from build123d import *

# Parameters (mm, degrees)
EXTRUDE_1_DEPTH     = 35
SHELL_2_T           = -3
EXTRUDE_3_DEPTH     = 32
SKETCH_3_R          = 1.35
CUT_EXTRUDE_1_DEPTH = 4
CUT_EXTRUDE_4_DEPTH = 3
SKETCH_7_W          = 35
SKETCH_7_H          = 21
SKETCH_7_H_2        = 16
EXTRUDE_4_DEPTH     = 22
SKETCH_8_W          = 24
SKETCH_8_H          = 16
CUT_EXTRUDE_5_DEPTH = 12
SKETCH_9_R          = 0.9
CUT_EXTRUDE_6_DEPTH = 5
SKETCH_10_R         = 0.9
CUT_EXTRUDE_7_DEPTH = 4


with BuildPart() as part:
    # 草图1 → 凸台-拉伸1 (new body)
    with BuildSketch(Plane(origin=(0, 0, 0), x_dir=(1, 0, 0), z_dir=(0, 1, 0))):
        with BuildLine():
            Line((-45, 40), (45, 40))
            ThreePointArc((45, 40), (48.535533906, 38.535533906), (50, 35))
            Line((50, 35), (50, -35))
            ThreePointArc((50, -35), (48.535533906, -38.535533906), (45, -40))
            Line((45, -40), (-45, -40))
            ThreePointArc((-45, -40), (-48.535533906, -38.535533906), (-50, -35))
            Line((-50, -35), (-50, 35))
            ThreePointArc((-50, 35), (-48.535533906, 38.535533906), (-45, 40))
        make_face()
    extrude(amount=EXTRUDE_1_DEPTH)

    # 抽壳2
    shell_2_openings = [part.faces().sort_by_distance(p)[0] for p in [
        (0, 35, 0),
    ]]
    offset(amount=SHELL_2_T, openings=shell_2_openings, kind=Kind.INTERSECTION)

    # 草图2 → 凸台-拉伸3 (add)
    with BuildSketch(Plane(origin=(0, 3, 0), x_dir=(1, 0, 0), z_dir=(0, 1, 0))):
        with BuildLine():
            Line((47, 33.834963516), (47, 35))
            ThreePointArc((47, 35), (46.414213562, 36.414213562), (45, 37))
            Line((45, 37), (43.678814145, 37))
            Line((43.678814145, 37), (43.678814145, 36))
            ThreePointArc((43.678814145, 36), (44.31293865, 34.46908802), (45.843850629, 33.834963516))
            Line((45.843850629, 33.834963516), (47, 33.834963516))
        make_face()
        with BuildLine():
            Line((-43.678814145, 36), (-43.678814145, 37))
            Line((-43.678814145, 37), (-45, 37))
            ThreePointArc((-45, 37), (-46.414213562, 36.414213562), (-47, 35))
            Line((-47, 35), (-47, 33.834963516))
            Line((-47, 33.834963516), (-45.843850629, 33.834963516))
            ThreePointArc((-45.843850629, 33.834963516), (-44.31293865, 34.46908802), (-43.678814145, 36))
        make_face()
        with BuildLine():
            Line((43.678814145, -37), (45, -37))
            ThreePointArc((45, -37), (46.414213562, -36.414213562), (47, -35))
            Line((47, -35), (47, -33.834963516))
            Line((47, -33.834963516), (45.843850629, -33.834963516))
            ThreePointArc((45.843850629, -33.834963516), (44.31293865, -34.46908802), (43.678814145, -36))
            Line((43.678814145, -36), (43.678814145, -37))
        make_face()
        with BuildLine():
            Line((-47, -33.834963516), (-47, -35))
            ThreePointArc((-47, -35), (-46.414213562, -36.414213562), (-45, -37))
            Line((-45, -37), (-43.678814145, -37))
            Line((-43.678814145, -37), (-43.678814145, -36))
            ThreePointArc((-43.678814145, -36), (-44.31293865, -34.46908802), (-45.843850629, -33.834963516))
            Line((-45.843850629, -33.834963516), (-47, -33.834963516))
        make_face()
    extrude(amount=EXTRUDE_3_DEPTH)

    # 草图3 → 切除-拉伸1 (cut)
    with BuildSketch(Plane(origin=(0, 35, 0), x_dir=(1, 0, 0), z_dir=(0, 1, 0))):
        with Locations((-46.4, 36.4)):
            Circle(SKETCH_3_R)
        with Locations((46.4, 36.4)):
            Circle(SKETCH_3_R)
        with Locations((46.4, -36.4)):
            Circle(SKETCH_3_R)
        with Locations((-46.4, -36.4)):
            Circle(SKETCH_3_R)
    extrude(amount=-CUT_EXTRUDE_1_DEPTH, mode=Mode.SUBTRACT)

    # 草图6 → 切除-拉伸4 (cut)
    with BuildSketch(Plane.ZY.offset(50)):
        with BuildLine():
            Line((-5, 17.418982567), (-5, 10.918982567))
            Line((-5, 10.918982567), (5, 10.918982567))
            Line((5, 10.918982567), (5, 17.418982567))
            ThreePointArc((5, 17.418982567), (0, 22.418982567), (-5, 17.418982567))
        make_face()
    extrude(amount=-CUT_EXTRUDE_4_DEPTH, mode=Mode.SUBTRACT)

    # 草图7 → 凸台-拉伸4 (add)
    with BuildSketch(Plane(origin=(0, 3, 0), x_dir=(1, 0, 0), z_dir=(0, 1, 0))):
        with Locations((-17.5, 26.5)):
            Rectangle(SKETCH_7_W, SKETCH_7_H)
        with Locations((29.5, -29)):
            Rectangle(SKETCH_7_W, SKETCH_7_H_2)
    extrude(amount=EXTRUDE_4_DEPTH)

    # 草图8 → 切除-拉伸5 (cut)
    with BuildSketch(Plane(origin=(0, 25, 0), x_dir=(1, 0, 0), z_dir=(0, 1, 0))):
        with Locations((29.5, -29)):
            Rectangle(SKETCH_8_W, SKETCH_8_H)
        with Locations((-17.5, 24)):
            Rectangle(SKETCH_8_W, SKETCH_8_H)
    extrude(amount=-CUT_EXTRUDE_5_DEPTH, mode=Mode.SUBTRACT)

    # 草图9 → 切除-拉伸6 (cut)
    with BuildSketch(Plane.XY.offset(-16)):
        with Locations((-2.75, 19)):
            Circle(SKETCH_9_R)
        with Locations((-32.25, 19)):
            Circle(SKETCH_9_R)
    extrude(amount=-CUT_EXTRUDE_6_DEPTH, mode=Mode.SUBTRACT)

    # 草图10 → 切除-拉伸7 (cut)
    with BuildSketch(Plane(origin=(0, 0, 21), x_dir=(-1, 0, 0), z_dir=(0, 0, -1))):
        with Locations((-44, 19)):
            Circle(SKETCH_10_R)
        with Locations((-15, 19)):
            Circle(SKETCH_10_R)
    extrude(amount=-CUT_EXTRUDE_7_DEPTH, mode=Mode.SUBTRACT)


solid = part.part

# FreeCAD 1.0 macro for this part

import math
import FreeCAD as App
import Part
import Sketcher

V = App.Vector
Q = App.Units.Quantity


def faces_at(feature, points):
    """Names of the faces that lie closest to the given points."""
    faces = feature.Shape.Faces
    near = lambda p: min(range(len(faces)), key=lambda i: faces[i].distToShape(Part.Vertex(*p))[0])
    return sorted({f"Face{near(p) + 1}" for p in points})

doc = App.newDocument("Part")
body = doc.addObject("PartDesign::Body", "Body")

# Sketch on XZ plane
sketch1 = doc.addObject("Sketcher::SketchObject", "Sketch")
body.addObject(sketch1)
sketch1.AttachmentSupport = (doc.XZ_Plane, [""])
sketch1.MapMode = "FlatFace"
sketch1.addGeometry([
    Part.LineSegment(V(45, -40, 0), V(-45, -40, 0)),  # 0
    Part.ArcOfCircle(Part.Circle(V(-45, -35, 0), V(0, 0, 1), 5), math.radians(180), math.radians(270)),  # 1
    Part.LineSegment(V(-50, -35, 0), V(-50, 35, 0)),  # 2
    Part.ArcOfCircle(Part.Circle(V(-45, 35, 0), V(0, 0, 1), 5), math.radians(90), math.radians(180)),  # 3
    Part.LineSegment(V(-45, 40, 0), V(45, 40, 0)),  # 4
    Part.ArcOfCircle(Part.Circle(V(45, 35, 0), V(0, 0, 1), 5), math.radians(0), math.radians(90)),  # 5
    Part.LineSegment(V(50, 35, 0), V(50, -35, 0)),  # 6
    Part.ArcOfCircle(Part.Circle(V(45, -35, 0), V(0, 0, 1), 5), math.radians(-90), math.radians(0)),  # 7
], False)
sketch1.addConstraint([
    Sketcher.Constraint("Tangent", 0, 2, 1, 2),
    Sketcher.Constraint("Tangent", 1, 1, 2, 1),
    Sketcher.Constraint("Tangent", 2, 2, 3, 2),
    Sketcher.Constraint("Tangent", 3, 1, 4, 1),
    Sketcher.Constraint("Tangent", 4, 2, 5, 2),
    Sketcher.Constraint("Tangent", 5, 1, 6, 1),
    Sketcher.Constraint("Tangent", 6, 2, 7, 2),
    Sketcher.Constraint("Tangent", 7, 1, 0, 1),
    Sketcher.Constraint("Horizontal", 0),
    Sketcher.Constraint("Vertical", 2),
    Sketcher.Constraint("Horizontal", 4),
    Sketcher.Constraint("Vertical", 6),
    Sketcher.Constraint("Equal", 1, 3),
    Sketcher.Constraint("Equal", 3, 5),
    Sketcher.Constraint("Equal", 5, 7),
    Sketcher.Constraint("Symmetric", 1, 3, 5, 3, -1, 1),
    Sketcher.Constraint("Radius", 1, Q("5 mm")),
    Sketcher.Constraint("DistanceX", 0, 2, 0, 1, Q("90 mm")),
    Sketcher.Constraint("DistanceY", 2, 1, 2, 2, Q("70 mm")),
])
pad1 = doc.addObject("PartDesign::Pad", "Pad")
body.addObject(pad1)
pad1.Profile = sketch1
pad1.Length = 35
pad1.Reversed = True
doc.recompute()

thickness = doc.addObject("PartDesign::Thickness", "Thickness")
body.addObject(thickness)
thickness.Base = (pad1, faces_at(pad1, [(0, 35, 0)]))
thickness.Value = 3
thickness.Reversed = True
thickness.Join = "Intersection"

# Sketch on XZ plane
sketch2 = doc.addObject("Sketcher::SketchObject", "Sketch001")
body.addObject(sketch2)
sketch2.AttachmentSupport = (doc.XZ_Plane, [""])
sketch2.MapMode = "FlatFace"
sketch2.AttachmentOffset = App.Placement(V(0, 0, -3), App.Rotation())
sketch2.addGeometry([
    Part.LineSegment(V(47, -33.8, 0), V(47, -35, 0)),  # 0
    Part.ArcOfCircle(Part.Circle(V(45, -35, 0), V(0, 0, 1), 2), math.radians(-90), math.radians(0)),  # 1
    Part.LineSegment(V(45, -37, 0), V(43.7, -37, 0)),  # 2
    Part.LineSegment(V(43.7, -37, 0), V(43.7, -36, 0)),  # 3
    Part.ArcOfCircle(Part.Circle(V(45.8, -36, 0), V(0, 0, 1), 2.2), math.radians(90), math.radians(180)),  # 4
    Part.LineSegment(V(45.8, -33.8, 0), V(47, -33.8, 0)),  # 5
    Part.LineSegment(V(-43.7, -36, 0), V(-43.7, -37, 0)),  # 6
    Part.LineSegment(V(-43.7, -37, 0), V(-45, -37, 0)),  # 7
    Part.ArcOfCircle(Part.Circle(V(-45, -35, 0), V(0, 0, 1), 2), math.radians(-180), math.radians(-90)),  # 8
    Part.LineSegment(V(-47, -35, 0), V(-47, -33.8, 0)),  # 9
    Part.LineSegment(V(-47, -33.8, 0), V(-45.8, -33.8, 0)),  # 10
    Part.ArcOfCircle(Part.Circle(V(-45.8, -36, 0), V(0, 0, 1), 2.2), math.radians(0), math.radians(90)),  # 11
    Part.LineSegment(V(43.7, 37, 0), V(45, 37, 0)),  # 12
    Part.ArcOfCircle(Part.Circle(V(45, 35, 0), V(0, 0, 1), 2), math.radians(0), math.radians(90)),  # 13
    Part.LineSegment(V(47, 35, 0), V(47, 33.8, 0)),  # 14
    Part.LineSegment(V(47, 33.8, 0), V(45.8, 33.8, 0)),  # 15
    Part.ArcOfCircle(Part.Circle(V(45.8, 36, 0), V(0, 0, 1), 2.2), math.radians(180), math.radians(270)),  # 16
    Part.LineSegment(V(43.7, 36, 0), V(43.7, 37, 0)),  # 17
    Part.LineSegment(V(-47, 33.8, 0), V(-47, 35, 0)),  # 18
    Part.ArcOfCircle(Part.Circle(V(-45, 35, 0), V(0, 0, 1), 2), math.radians(90), math.radians(180)),  # 19
    Part.LineSegment(V(-45, 37, 0), V(-43.7, 37, 0)),  # 20
    Part.LineSegment(V(-43.7, 37, 0), V(-43.7, 36, 0)),  # 21
    Part.ArcOfCircle(Part.Circle(V(-45.8, 36, 0), V(0, 0, 1), 2.2), math.radians(-90), math.radians(0)),  # 22
    Part.LineSegment(V(-45.8, 33.8, 0), V(-47, 33.8, 0)),  # 23
], False)
sketch2.addConstraint([
    Sketcher.Constraint("Tangent", 0, 2, 1, 2),
    Sketcher.Constraint("Tangent", 1, 1, 2, 1),
    Sketcher.Constraint("Coincident", 2, 2, 3, 1),
    Sketcher.Constraint("Tangent", 3, 2, 4, 2),
    Sketcher.Constraint("Tangent", 4, 1, 5, 1),
    Sketcher.Constraint("Coincident", 5, 2, 0, 1),
    Sketcher.Constraint("Coincident", 6, 2, 7, 1),
    Sketcher.Constraint("Tangent", 7, 2, 8, 2),
    Sketcher.Constraint("Tangent", 8, 1, 9, 1),
    Sketcher.Constraint("Coincident", 9, 2, 10, 1),
    Sketcher.Constraint("Tangent", 10, 2, 11, 2),
    Sketcher.Constraint("Tangent", 11, 1, 6, 1),
    Sketcher.Constraint("Tangent", 12, 2, 13, 2),
    Sketcher.Constraint("Tangent", 13, 1, 14, 1),
    Sketcher.Constraint("Coincident", 14, 2, 15, 1),
    Sketcher.Constraint("Tangent", 15, 2, 16, 2),
    Sketcher.Constraint("Tangent", 16, 1, 17, 1),
    Sketcher.Constraint("Coincident", 17, 2, 12, 1),
    Sketcher.Constraint("Tangent", 18, 2, 19, 2),
    Sketcher.Constraint("Tangent", 19, 1, 20, 1),
    Sketcher.Constraint("Coincident", 20, 2, 21, 1),
    Sketcher.Constraint("Tangent", 21, 2, 22, 2),
    Sketcher.Constraint("Tangent", 22, 1, 23, 1),
    Sketcher.Constraint("Coincident", 23, 2, 18, 1),
    Sketcher.Constraint("Vertical", 0),
    Sketcher.Constraint("Horizontal", 2),
    Sketcher.Constraint("Vertical", 3),
    Sketcher.Constraint("Horizontal", 5),
    Sketcher.Constraint("Vertical", 6),
    Sketcher.Constraint("Horizontal", 7),
    Sketcher.Constraint("Vertical", 9),
    Sketcher.Constraint("Horizontal", 10),
    Sketcher.Constraint("Horizontal", 12),
    Sketcher.Constraint("Vertical", 14),
    Sketcher.Constraint("Horizontal", 15),
    Sketcher.Constraint("Vertical", 17),
    Sketcher.Constraint("Vertical", 18),
    Sketcher.Constraint("Horizontal", 20),
    Sketcher.Constraint("Vertical", 21),
    Sketcher.Constraint("Horizontal", 23),
    Sketcher.Constraint("Equal", 1, 8),
    Sketcher.Constraint("Equal", 4, 11),
    Sketcher.Constraint("Equal", 8, 13),
    Sketcher.Constraint("Equal", 11, 16),
    Sketcher.Constraint("Equal", 13, 19),
    Sketcher.Constraint("Equal", 16, 22),
    Sketcher.Constraint("Symmetric", 8, 3, 13, 3, -1, 1),
    Sketcher.Constraint("Symmetric", 11, 3, 16, 3, -1, 1),
    Sketcher.Constraint("Symmetric", 1, 3, 19, 3, -1, 1),
    Sketcher.Constraint("Symmetric", 4, 3, 22, 3, -1, 1),
    Sketcher.Constraint("Symmetric", 1, 3, 8, 3, -2),
    Sketcher.Constraint("Symmetric", 4, 3, 11, 3, -2),
    Sketcher.Constraint("Radius", 1, Q("2 mm")),
    Sketcher.Constraint("DistanceY", 3, 1, 3, 2, Q("1 mm")),
    Sketcher.Constraint("DistanceX", -1, 1, 1, 3, Q("45 mm")),
    Sketcher.Constraint("DistanceY", 1, 3, -1, 1, Q("35 mm")),
    Sketcher.Constraint("Radius", 4, Q("2.165036 mm")),
    Sketcher.Constraint("DistanceX", 5, 1, 5, 2, Q("1.156149 mm")),
])
pad2 = doc.addObject("PartDesign::Pad", "Pad001")
body.addObject(pad2)
pad2.Profile = sketch2
pad2.Length = 32
pad2.Reversed = True

# Sketch on XZ plane
sketch3 = doc.addObject("Sketcher::SketchObject", "Sketch002")
body.addObject(sketch3)
sketch3.AttachmentSupport = (doc.XZ_Plane, [""])
sketch3.MapMode = "FlatFace"
sketch3.AttachmentOffset = App.Placement(V(0, 0, -35), App.Rotation())
sketch3.addGeometry([
    Part.Circle(V(-46.4, -36.4, 0), V(0, 0, 1), 1.4),
    Part.Circle(V(46.4, -36.4, 0), V(0, 0, 1), 1.4),
    Part.Circle(V(46.4, 36.4, 0), V(0, 0, 1), 1.4),
    Part.Circle(V(-46.4, 36.4, 0), V(0, 0, 1), 1.4),
], False)
sketch3.addConstraint([
    Sketcher.Constraint("Equal", 0, 1),
    Sketcher.Constraint("Equal", 1, 2),
    Sketcher.Constraint("Equal", 2, 3),
    Sketcher.Constraint("Symmetric", 0, 3, 2, 3, -1, 1),
    Sketcher.Constraint("Symmetric", 1, 3, 3, 3, -1, 1),
    Sketcher.Constraint("Symmetric", 0, 3, 1, 3, -2),
    Sketcher.Constraint("Diameter", 0, Q("2.7 mm")),
    Sketcher.Constraint("DistanceX", 0, 3, -1, 1, Q("46.4 mm")),
    Sketcher.Constraint("DistanceY", 0, 3, -1, 1, Q("36.4 mm")),
])
pocket1 = doc.addObject("PartDesign::Pocket", "Pocket")
body.addObject(pocket1)
pocket1.Profile = sketch3
pocket1.Length = 4
pocket1.Reversed = True

# Sketch on YZ plane
sketch4 = doc.addObject("Sketcher::SketchObject", "Sketch003")
body.addObject(sketch4)
sketch4.AttachmentSupport = (doc.YZ_Plane, [""])
sketch4.MapMode = "FlatFace"
sketch4.AttachmentOffset = App.Placement(V(0, 0, -50), App.Rotation())
sketch4.addGeometry([
    Part.LineSegment(V(17, -5, 0), V(11, -5, 0)),
    Part.LineSegment(V(11, -5, 0), V(11, 5, 0)),
    Part.LineSegment(V(11, 5, 0), V(17, 5, 0)),
    Part.ArcOfCircle(Part.Circle(V(17, 0, 0), V(0, 0, 1), 5), math.radians(-90), math.radians(90)),
], False)
sketch4.addConstraint([
    Sketcher.Constraint("Coincident", 0, 2, 1, 1),
    Sketcher.Constraint("Coincident", 1, 2, 2, 1),
    Sketcher.Constraint("Tangent", 2, 2, 3, 2),
    Sketcher.Constraint("Tangent", 3, 1, 0, 1),
    Sketcher.Constraint("Horizontal", 0),
    Sketcher.Constraint("Vertical", 1),
    Sketcher.Constraint("Horizontal", 2),
    Sketcher.Constraint("PointOnObject", 3, 3, -1),
    Sketcher.Constraint("Radius", 3, Q("5 mm")),
    Sketcher.Constraint("DistanceX", 0, 2, 0, 1, Q("6.5 mm")),
    Sketcher.Constraint("DistanceX", -1, 1, 3, 3, Q("17.418983 mm")),
])
pocket2 = doc.addObject("PartDesign::Pocket", "Pocket001")
body.addObject(pocket2)
pocket2.Profile = sketch4
pocket2.Length = 3
pocket2.Reversed = True

# Sketch on XZ plane
sketch5 = doc.addObject("Sketcher::SketchObject", "Sketch004")
body.addObject(sketch5)
sketch5.AttachmentSupport = (doc.XZ_Plane, [""])
sketch5.MapMode = "FlatFace"
sketch5.AttachmentOffset = App.Placement(V(0, 0, -3), App.Rotation())
sketch5.addGeometry([
    Part.LineSegment(V(-35, -37, 0), V(-35, -16, 0)),  # 0
    Part.LineSegment(V(-35, -16, 0), V(0, -16, 0)),  # 1
    Part.LineSegment(V(0, -16, 0), V(0, -37, 0)),  # 2
    Part.LineSegment(V(0, -37, 0), V(-35, -37, 0)),  # 3
    Part.LineSegment(V(12, 21, 0), V(12, 37, 0)),  # 4
    Part.LineSegment(V(12, 37, 0), V(47, 37, 0)),  # 5
    Part.LineSegment(V(47, 37, 0), V(47, 21, 0)),  # 6
    Part.LineSegment(V(47, 21, 0), V(12, 21, 0)),  # 7
], False)
sketch5.addConstraint([
    Sketcher.Constraint("Coincident", 0, 2, 1, 1),
    Sketcher.Constraint("Coincident", 1, 2, 2, 1),
    Sketcher.Constraint("Coincident", 2, 2, 3, 1),
    Sketcher.Constraint("Coincident", 3, 2, 0, 1),
    Sketcher.Constraint("Coincident", 4, 2, 5, 1),
    Sketcher.Constraint("Coincident", 5, 2, 6, 1),
    Sketcher.Constraint("Coincident", 6, 2, 7, 1),
    Sketcher.Constraint("Coincident", 7, 2, 4, 1),
    Sketcher.Constraint("Vertical", 0),
    Sketcher.Constraint("Horizontal", 1),
    Sketcher.Constraint("Vertical", 2),
    Sketcher.Constraint("Horizontal", 3),
    Sketcher.Constraint("Vertical", 4),
    Sketcher.Constraint("Horizontal", 5),
    Sketcher.Constraint("Vertical", 6),
    Sketcher.Constraint("Horizontal", 7),
    Sketcher.Constraint("PointOnObject", 1, 2, -2),
    Sketcher.Constraint("Equal", 3, 5),
    Sketcher.Constraint("DistanceX", 1, 1, 1, 2, Q("35 mm")),
    Sketcher.Constraint("DistanceY", 0, 1, 0, 2, Q("21 mm")),
    Sketcher.Constraint("DistanceY", 4, 1, 4, 2, Q("16 mm")),
    Sketcher.Constraint("DistanceY", 0, 2, -1, 1, Q("16 mm")),
    Sketcher.Constraint("DistanceX", -1, 1, 4, 2, Q("12 mm")),
    Sketcher.Constraint("DistanceY", -1, 1, 4, 2, Q("37 mm")),
])
pad3 = doc.addObject("PartDesign::Pad", "Pad002")
body.addObject(pad3)
pad3.Profile = sketch5
pad3.Length = 22
pad3.Reversed = True

# Sketch on XZ plane
sketch6 = doc.addObject("Sketcher::SketchObject", "Sketch005")
body.addObject(sketch6)
sketch6.AttachmentSupport = (doc.XZ_Plane, [""])
sketch6.MapMode = "FlatFace"
sketch6.AttachmentOffset = App.Placement(V(0, 0, -25), App.Rotation())
sketch6.addGeometry([
    Part.LineSegment(V(18, 21, 0), V(18, 37, 0)),  # 0
    Part.LineSegment(V(18, 37, 0), V(42, 37, 0)),  # 1
    Part.LineSegment(V(42, 37, 0), V(42, 21, 0)),  # 2
    Part.LineSegment(V(42, 21, 0), V(18, 21, 0)),  # 3
    Part.LineSegment(V(-30, -32, 0), V(-30, -16, 0)),  # 4
    Part.LineSegment(V(-30, -16, 0), V(-6, -16, 0)),  # 5
    Part.LineSegment(V(-6, -16, 0), V(-6, -32, 0)),  # 6
    Part.LineSegment(V(-6, -32, 0), V(-30, -32, 0)),  # 7
], False)
sketch6.addConstraint([
    Sketcher.Constraint("Coincident", 0, 2, 1, 1),
    Sketcher.Constraint("Coincident", 1, 2, 2, 1),
    Sketcher.Constraint("Coincident", 2, 2, 3, 1),
    Sketcher.Constraint("Coincident", 3, 2, 0, 1),
    Sketcher.Constraint("Coincident", 4, 2, 5, 1),
    Sketcher.Constraint("Coincident", 5, 2, 6, 1),
    Sketcher.Constraint("Coincident", 6, 2, 7, 1),
    Sketcher.Constraint("Coincident", 7, 2, 4, 1),
    Sketcher.Constraint("Vertical", 0),
    Sketcher.Constraint("Horizontal", 1),
    Sketcher.Constraint("Vertical", 2),
    Sketcher.Constraint("Horizontal", 3),
    Sketcher.Constraint("Vertical", 4),
    Sketcher.Constraint("Horizontal", 5),
    Sketcher.Constraint("Vertical", 6),
    Sketcher.Constraint("Horizontal", 7),
    Sketcher.Constraint("Equal", 3, 5),
    Sketcher.Constraint("Equal", 2, 4),
    Sketcher.Constraint("DistanceX", 1, 1, 1, 2, Q("24 mm")),
    Sketcher.Constraint("DistanceY", 0, 1, 0, 2, Q("16 mm")),
    Sketcher.Constraint("DistanceY", -1, 1, 0, 2, Q("37 mm")),
    Sketcher.Constraint("DistanceY", 4, 2, -1, 1, Q("16 mm")),
    Sketcher.Constraint("DistanceX", 4, 2, 3, 2, Q("47 mm")),
    Sketcher.Constraint("DistanceX", -1, 1, 0, 2, Q("17.5 mm")),
])
pocket3 = doc.addObject("PartDesign::Pocket", "Pocket002")
body.addObject(pocket3)
pocket3.Profile = sketch6
pocket3.Length = 12
pocket3.Reversed = True

# Sketch on XY plane
sketch7 = doc.addObject("Sketcher::SketchObject", "Sketch006")
body.addObject(sketch7)
sketch7.AttachmentSupport = (doc.XY_Plane, [""])
sketch7.MapMode = "FlatFace"
sketch7.AttachmentOffset = App.Placement(V(0, 0, -16), App.Rotation())
sketch7.addGeometry([
    Part.Circle(V(-2.8, 19, 0), V(0, 0, 1), 0.9),
    Part.Circle(V(-32.2, 19, 0), V(0, 0, 1), 0.9),
], False)
sketch7.addConstraint([
    Sketcher.Constraint("Equal", 0, 1),
    Sketcher.Constraint("Horizontal", 0, 3, 1, 3),
    Sketcher.Constraint("Diameter", 0, Q("1.8 mm")),
    Sketcher.Constraint("DistanceY", -1, 1, 0, 3, Q("19 mm")),
    Sketcher.Constraint("DistanceX", 1, 3, 0, 3, Q("29.5 mm")),
    Sketcher.Constraint("DistanceX", 0, 3, -1, 1, Q("2.75 mm")),
])
pocket4 = doc.addObject("PartDesign::Pocket", "Pocket003")
body.addObject(pocket4)
pocket4.Profile = sketch7
pocket4.Length = 5

# Sketch on XY plane
sketch8 = doc.addObject("Sketcher::SketchObject", "Sketch007")
body.addObject(sketch8)
sketch8.AttachmentSupport = (doc.XY_Plane, [""])
sketch8.MapMode = "FlatFace"
sketch8.AttachmentOffset = App.Placement(V(0, 0, 21), App.Rotation())
sketch8.addGeometry([
    Part.Circle(V(44, 19, 0), V(0, 0, 1), 0.9),
    Part.Circle(V(15, 19, 0), V(0, 0, 1), 0.9),
], False)
sketch8.addConstraint([
    Sketcher.Constraint("Equal", 0, 1),
    Sketcher.Constraint("Horizontal", 0, 3, 1, 3),
    Sketcher.Constraint("Diameter", 0, Q("1.8 mm")),
    Sketcher.Constraint("DistanceX", -1, 1, 0, 3, Q("44 mm")),
    Sketcher.Constraint("DistanceY", -1, 1, 0, 3, Q("19 mm")),
    Sketcher.Constraint("DistanceX", -1, 1, 1, 3, Q("15 mm")),
])
pocket5 = doc.addObject("PartDesign::Pocket", "Pocket004")
body.addObject(pocket5)
pocket5.Profile = sketch8
pocket5.Length = 4
pocket5.Reversed = True

doc.recompute()
